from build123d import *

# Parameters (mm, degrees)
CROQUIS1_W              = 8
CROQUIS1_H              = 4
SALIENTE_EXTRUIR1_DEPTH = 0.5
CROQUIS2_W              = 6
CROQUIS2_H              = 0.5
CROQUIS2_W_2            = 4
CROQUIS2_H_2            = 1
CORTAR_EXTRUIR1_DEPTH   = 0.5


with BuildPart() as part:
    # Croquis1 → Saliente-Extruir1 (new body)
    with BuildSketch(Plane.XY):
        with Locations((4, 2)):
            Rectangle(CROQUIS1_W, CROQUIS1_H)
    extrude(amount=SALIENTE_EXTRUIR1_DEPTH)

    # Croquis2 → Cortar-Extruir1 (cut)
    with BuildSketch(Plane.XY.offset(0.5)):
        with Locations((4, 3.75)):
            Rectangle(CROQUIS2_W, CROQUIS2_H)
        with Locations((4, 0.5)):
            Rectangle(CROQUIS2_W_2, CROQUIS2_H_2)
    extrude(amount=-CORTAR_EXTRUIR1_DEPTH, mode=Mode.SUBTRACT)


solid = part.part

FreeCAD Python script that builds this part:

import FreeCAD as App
import Part
import Sketcher

V = App.Vector
Q = App.Units.Quantity


def add_polygon(sketch, points):
    """Adds a closed chain of lines whose ends are joined by coincident constraints."""
    first, n = sketch.GeometryCount, len(points)
    for a, b in zip(points, points[1:] + points[:1]):
        sketch.addGeometry(Part.LineSegment(App.Vector(*a, 0), App.Vector(*b, 0)), False)
    for i in range(n):
        sketch.addConstraint(Sketcher.Constraint("Coincident", first + i, 2, first + (i + 1) % n, 1))

doc = App.newDocument("Part")
params = doc.addObject("Spreadsheet::Sheet", "Params")
for row, (alias, value) in enumerate([
    ("sketch1_width", "8 mm"),
    ("sketch1_height", "4 mm"),
    ("pad1_length", "0.5 mm"),
    ("sketch2_width", "6 mm"),
    ("sketch2_width2", "4 mm"),
    ("sketch2_height", "1 mm"),
    ("sketch2_height2", "0.5 mm"),
    ("pocket1_length", "0.5 mm"),
], start=1):
    params.set(f"A{row}", alias)
    params.set(f"B{row}", "=" + value)
    params.setAlias(f"B{row}", alias)

body = doc.addObject("PartDesign::Body", "Body")

# Sketch on XY plane
sketch1 = body.newObject("Sketcher::SketchObject", "Sketch")
sketch1.AttachmentSupport = (doc.getObject("XY_Plane"), [""])
sketch1.MapMode = "FlatFace"
add_polygon(sketch1, [(0, 4), (0, 0), (8, 0), (8, 4)])  # lines 0-3
sketch1.addConstraint([
    Sketcher.Constraint("Vertical", 0),
    Sketcher.Constraint("Horizontal", 1),
    Sketcher.Constraint("Vertical", 2),
    Sketcher.Constraint("Horizontal", 3),
    Sketcher.Constraint("Coincident", 0, 2, -1, 1),
    Sketcher.Constraint("DistanceX", 1, 1, 1, 2, Q("8 mm")),
    Sketcher.Constraint("DistanceY", 0, 2, 0, 1, Q("4 mm")),
])
sketch1.setExpression("Constraints[9]", "Params.sketch1_width")
sketch1.setExpression("Constraints[10]", "Params.sketch1_height")
pad1 = body.newObject("PartDesign::Pad", "Pad")
pad1.Profile = sketch1
pad1.setExpression("Length", "Params.pad1_length")

# Sketch on XY plane
sketch2 = body.newObject("Sketcher::SketchObject", "Sketch001")
sketch2.AttachmentSupport = (doc.getObject("XY_Plane"), [""])
sketch2.MapMode = "FlatFace"
sketch2.AttachmentOffset = App.Placement(V(0, 0, 0.5), App.Rotation())
add_polygon(sketch2, [(1, 4), (1, 3.5), (7, 3.5), (7, 4)])  # lines 0-3
add_polygon(sketch2, [(2, 1), (2, 0), (6, 0), (6, 1)])  # lines 4-7
sketch2.addConstraint([
    Sketcher.Constraint("Vertical", 0),
    Sketcher.Constraint("Horizontal", 1),
    Sketcher.Constraint("Vertical", 2),
    Sketcher.Constraint("Horizontal", 3),
    Sketcher.Constraint("Vertical", 4),
    Sketcher.Constraint("Horizontal", 5),
    Sketcher.Constraint("Vertical", 6),
    Sketcher.Constraint("Horizontal", 7),
    Sketcher.Constraint("PointOnObject", 4, 2, -1),
    Sketcher.Constraint("DistanceX", 1, 1, 1, 2, Q("6 mm")),
    Sketcher.Constraint("DistanceX", 5, 1, 5, 2, Q("4 mm")),
    Sketcher.Constraint("DistanceY", 4, 2, 4, 1, Q("1 mm")),
    Sketcher.Constraint("DistanceY", 0, 2, 0, 1, Q("0.5 mm")),
    Sketcher.Constraint("DistanceX", -1, 1, 0, 2, Q("1 mm")),
    Sketcher.Constraint("DistanceY", -1, 1, 2, 2, Q("4 mm")),
    Sketcher.Constraint("DistanceX", -1, 1, 4, 2, Q("2 mm")),
])
sketch2.setExpression("Constraints[17]", "Params.sketch2_width")
sketch2.setExpression("Constraints[18]", "Params.sketch2_width2")
sketch2.setExpression("Constraints[19]", "Params.sketch2_height")
sketch2.setExpression("Constraints[20]", "Params.sketch2_height2")
pocket1 = body.newObject("PartDesign::Pocket", "Pocket")
pocket1.Profile = sketch2
pocket1.setExpression("Length", "Params.pocket1_length")

doc.recompute()
